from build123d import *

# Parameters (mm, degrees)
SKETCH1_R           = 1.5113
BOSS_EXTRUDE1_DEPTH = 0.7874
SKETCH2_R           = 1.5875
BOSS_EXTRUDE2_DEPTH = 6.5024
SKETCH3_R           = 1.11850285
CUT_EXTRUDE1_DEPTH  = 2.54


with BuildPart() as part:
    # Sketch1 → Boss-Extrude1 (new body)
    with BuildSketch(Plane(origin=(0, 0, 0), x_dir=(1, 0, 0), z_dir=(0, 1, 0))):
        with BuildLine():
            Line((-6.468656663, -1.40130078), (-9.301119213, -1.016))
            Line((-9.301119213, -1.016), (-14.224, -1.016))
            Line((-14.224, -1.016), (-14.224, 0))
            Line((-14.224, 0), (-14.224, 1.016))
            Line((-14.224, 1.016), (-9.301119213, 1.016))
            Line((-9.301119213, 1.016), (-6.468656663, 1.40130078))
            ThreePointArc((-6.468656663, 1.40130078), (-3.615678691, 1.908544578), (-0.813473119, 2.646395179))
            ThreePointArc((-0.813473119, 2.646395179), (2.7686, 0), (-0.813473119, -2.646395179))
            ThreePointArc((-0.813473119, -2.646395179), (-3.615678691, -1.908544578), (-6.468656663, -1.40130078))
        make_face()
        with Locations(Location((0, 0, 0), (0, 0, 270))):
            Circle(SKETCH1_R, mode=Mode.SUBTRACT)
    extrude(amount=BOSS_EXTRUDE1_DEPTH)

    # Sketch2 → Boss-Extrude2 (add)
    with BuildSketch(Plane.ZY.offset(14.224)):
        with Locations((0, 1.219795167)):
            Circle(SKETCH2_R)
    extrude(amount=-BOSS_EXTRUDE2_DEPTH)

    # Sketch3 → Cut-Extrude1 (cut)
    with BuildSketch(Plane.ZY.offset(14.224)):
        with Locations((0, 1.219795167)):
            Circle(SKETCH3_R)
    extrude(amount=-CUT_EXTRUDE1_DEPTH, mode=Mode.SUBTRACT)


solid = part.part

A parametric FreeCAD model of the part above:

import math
import FreeCAD as App
import Part
import Sketcher
Q = App.Units.Quantity

doc = App.newDocument("Part")
params = doc.addObject("Spreadsheet::Sheet", "Params")
for row, (alias, value) in enumerate([
    ("sketch1_radius", "1.4 in"),
    ("sketch1_diameter", "0.119 in"),
    ("sketch1_radius2", "0.109 in"),
    ("sketch1_height", "0.08 in"),
    ("pad1_length", "0.031 in"),
    ("sketch2_diameter", "0.125 in"),
    ("pad2_length", "0.256 in"),
    ("pocket1_length", "0.1 in"),
], start=1):
    params.set(f"A{row}", alias)
    params.set(f"B{row}", "=" + value)
    params.setAlias(f"B{row}", alias)

body = doc.addObject("PartDesign::Body", "Body")

# Sketch on XZ plane
sketch1 = body.newObject("Sketcher::SketchObject", "Sketch")
sketch1.AttachmentSupport = (doc.getObject("XZ_Plane"), [""])
sketch1.MapMode = "FlatFace"
sketch1.addGeometry(Part.LineSegment(App.Vector(-9.3, 1, 0), App.Vector(-6.5, 1.4, 0)), False)
sketch1.addGeometry(Part.ArcOfCircle(Part.Circle(App.Vector(-11.3, 36.6, 0), App.Vector(0, 0, 1), 35.6), math.radians(-82.25), math.radians(-72.91)), False)
sketch1.addGeometry(Part.ArcOfCircle(Part.Circle(App.Vector(0, 0, 0), App.Vector(0, 0, 1), 2.8), math.radians(-107), math.radians(107)), False)
sketch1.addGeometry(Part.ArcOfCircle(Part.Circle(App.Vector(-11.3, -36.6, 0), App.Vector(0, 0, 1), 35.6), math.radians(72.91), math.radians(82.25)), False)
sketch1.addGeometry(Part.LineSegment(App.Vector(-6.5, -1.4, 0), App.Vector(-9.3, -1, 0)), False)
sketch1.addGeometry(Part.LineSegment(App.Vector(-9.3, -1, 0), App.Vector(-14.2, -1, 0)), False)
sketch1.addGeometry(Part.LineSegment(App.Vector(-14.2, -1, 0), App.Vector(-14.2, 1, 0)), False)
sketch1.addGeometry(Part.LineSegment(App.Vector(-14.2, 1, 0), App.Vector(-9.3, 1, 0)), False)
sketch1.addGeometry(Part.Circle(App.Vector(0, 0, 0), App.Vector(0, 0, 1), 1.5), False)
sketch1.addConstraint(Sketcher.Constraint("Tangent", 0, 2, 1, 1))
sketch1.addConstraint(Sketcher.Constraint("Tangent", 1, 2, 2, 2))
sketch1.addConstraint(Sketcher.Constraint("Tangent", 2, 1, 3, 1))
sketch1.addConstraint(Sketcher.Constraint("Tangent", 3, 2, 4, 1))
sketch1.addConstraint(Sketcher.Constraint("Coincident", 4, 2, 5, 1))
sketch1.addConstraint(Sketcher.Constraint("Coincident", 5, 2, 6, 1))
sketch1.addConstraint(Sketcher.Constraint("Coincident", 6, 2, 7, 1))
sketch1.addConstraint(Sketcher.Constraint("Coincident", 7, 2, 0, 1))
sketch1.addConstraint(Sketcher.Constraint("Horizontal", 5))
sketch1.addConstraint(Sketcher.Constraint("Vertical", 6))
sketch1.addConstraint(Sketcher.Constraint("Horizontal", 7))
sketch1.addConstraint(Sketcher.Constraint("Coincident", 2, 3, -1, 1))
sketch1.addConstraint(Sketcher.Constraint("Coincident", 8, 3, -1, 1))
sketch1.addConstraint(Sketcher.Constraint("Equal", 1, 3))
sketch1.addConstraint(Sketcher.Constraint("Symmetric", 0, 2, 3, 2, -1))
sketch1.addConstraint(Sketcher.Constraint("Vertical", 4, 2, 7, 2))
sketch1.addConstraint(Sketcher.Constraint("Radius", 1, Q("1.4 in")))
sketch1.addConstraint(Sketcher.Constraint("Diameter", 8, Q("0.119 in")))
sketch1.addConstraint(Sketcher.Constraint("Radius", 2, Q("0.109 in")))
sketch1.addConstraint(Sketcher.Constraint("DistanceY", 6, 1, 6, 2, Q("0.08 in")))
sketch1.addConstraint(Sketcher.Constraint("DistanceX", 5, 2, -1, 1, Q("0.56 in")))
sketch1.addConstraint(Sketcher.Constraint("DistanceX", 5, 2, 5, 1, Q("4.922881 mm")))
sketch1.addConstraint(Sketcher.Constraint("DistanceY", -1, 1, 0, 2, Q("1.401301 mm")))
sketch1.setExpression("Constraints[16]", "Params.sketch1_radius")
sketch1.setExpression("Constraints[17]", "Params.sketch1_diameter")
sketch1.setExpression("Constraints[18]", "Params.sketch1_radius2")
sketch1.setExpression("Constraints[19]", "Params.sketch1_height")
pad1 = body.newObject("PartDesign::Pad", "Pad")
pad1.Profile = sketch1
pad1.setExpression("Length", "Params.pad1_length")
pad1.Reversed = True

# Sketch on YZ plane
sketch2 = body.newObject("Sketcher::SketchObject", "Sketch001")
sketch2.AttachmentSupport = (doc.getObject("YZ_Plane"), [""])
sketch2.MapMode = "FlatFace"
sketch2.AttachmentOffset = App.Placement(App.Vector(0, 0, -0.56 * 25.4), App.Rotation())
sketch2.addGeometry(Part.Circle(App.Vector(1.2, 0, 0), App.Vector(0, 0, 1), 1.6), False)
sketch2.addConstraint(Sketcher.Constraint("PointOnObject", 0, 3, -1))
sketch2.addConstraint(Sketcher.Constraint("Diameter", 0, Q("0.125 in")))
sketch2.addConstraint(Sketcher.Constraint("DistanceX", -1, 1, 0, 3, Q("1.219795 mm")))
sketch2.setExpression("Constraints[1]", "Params.sketch2_diameter")
pad2 = body.newObject("PartDesign::Pad", "Pad001")
pad2.Profile = sketch2
pad2.setExpression("Length", "Params.pad2_length")

# Sketch on YZ plane
sketch3 = body.newObject("Sketcher::SketchObject", "Sketch002")
sketch3.AttachmentSupport = (doc.getObject("YZ_Plane"), [""])
sketch3.MapMode = "FlatFace"
sketch3.AttachmentOffset = App.Placement(App.Vector(0, 0, -0.56 * 25.4), App.Rotation())
sketch3.addGeometry(Part.Circle(App.Vector(1.2, 0, 0), App.Vector(0, 0, 1), 1.1), False)
sketch3.addConstraint(Sketcher.Constraint("PointOnObject", 0, 3, -1))
sketch3.addConstraint(Sketcher.Constraint("Diameter", 0, Q("2.237006 mm")))
sketch3.addConstraint(Sketcher.Constraint("DistanceX", -1, 1, 0, 3, Q("1.219795 mm")))
pocket1 = body.newObject("PartDesign::Pocket", "Pocket")
pocket1.Profile = sketch3
pocket1.setExpression("Length", "Params.pocket1_length")
pocket1.Reversed = True

doc.recompute()
